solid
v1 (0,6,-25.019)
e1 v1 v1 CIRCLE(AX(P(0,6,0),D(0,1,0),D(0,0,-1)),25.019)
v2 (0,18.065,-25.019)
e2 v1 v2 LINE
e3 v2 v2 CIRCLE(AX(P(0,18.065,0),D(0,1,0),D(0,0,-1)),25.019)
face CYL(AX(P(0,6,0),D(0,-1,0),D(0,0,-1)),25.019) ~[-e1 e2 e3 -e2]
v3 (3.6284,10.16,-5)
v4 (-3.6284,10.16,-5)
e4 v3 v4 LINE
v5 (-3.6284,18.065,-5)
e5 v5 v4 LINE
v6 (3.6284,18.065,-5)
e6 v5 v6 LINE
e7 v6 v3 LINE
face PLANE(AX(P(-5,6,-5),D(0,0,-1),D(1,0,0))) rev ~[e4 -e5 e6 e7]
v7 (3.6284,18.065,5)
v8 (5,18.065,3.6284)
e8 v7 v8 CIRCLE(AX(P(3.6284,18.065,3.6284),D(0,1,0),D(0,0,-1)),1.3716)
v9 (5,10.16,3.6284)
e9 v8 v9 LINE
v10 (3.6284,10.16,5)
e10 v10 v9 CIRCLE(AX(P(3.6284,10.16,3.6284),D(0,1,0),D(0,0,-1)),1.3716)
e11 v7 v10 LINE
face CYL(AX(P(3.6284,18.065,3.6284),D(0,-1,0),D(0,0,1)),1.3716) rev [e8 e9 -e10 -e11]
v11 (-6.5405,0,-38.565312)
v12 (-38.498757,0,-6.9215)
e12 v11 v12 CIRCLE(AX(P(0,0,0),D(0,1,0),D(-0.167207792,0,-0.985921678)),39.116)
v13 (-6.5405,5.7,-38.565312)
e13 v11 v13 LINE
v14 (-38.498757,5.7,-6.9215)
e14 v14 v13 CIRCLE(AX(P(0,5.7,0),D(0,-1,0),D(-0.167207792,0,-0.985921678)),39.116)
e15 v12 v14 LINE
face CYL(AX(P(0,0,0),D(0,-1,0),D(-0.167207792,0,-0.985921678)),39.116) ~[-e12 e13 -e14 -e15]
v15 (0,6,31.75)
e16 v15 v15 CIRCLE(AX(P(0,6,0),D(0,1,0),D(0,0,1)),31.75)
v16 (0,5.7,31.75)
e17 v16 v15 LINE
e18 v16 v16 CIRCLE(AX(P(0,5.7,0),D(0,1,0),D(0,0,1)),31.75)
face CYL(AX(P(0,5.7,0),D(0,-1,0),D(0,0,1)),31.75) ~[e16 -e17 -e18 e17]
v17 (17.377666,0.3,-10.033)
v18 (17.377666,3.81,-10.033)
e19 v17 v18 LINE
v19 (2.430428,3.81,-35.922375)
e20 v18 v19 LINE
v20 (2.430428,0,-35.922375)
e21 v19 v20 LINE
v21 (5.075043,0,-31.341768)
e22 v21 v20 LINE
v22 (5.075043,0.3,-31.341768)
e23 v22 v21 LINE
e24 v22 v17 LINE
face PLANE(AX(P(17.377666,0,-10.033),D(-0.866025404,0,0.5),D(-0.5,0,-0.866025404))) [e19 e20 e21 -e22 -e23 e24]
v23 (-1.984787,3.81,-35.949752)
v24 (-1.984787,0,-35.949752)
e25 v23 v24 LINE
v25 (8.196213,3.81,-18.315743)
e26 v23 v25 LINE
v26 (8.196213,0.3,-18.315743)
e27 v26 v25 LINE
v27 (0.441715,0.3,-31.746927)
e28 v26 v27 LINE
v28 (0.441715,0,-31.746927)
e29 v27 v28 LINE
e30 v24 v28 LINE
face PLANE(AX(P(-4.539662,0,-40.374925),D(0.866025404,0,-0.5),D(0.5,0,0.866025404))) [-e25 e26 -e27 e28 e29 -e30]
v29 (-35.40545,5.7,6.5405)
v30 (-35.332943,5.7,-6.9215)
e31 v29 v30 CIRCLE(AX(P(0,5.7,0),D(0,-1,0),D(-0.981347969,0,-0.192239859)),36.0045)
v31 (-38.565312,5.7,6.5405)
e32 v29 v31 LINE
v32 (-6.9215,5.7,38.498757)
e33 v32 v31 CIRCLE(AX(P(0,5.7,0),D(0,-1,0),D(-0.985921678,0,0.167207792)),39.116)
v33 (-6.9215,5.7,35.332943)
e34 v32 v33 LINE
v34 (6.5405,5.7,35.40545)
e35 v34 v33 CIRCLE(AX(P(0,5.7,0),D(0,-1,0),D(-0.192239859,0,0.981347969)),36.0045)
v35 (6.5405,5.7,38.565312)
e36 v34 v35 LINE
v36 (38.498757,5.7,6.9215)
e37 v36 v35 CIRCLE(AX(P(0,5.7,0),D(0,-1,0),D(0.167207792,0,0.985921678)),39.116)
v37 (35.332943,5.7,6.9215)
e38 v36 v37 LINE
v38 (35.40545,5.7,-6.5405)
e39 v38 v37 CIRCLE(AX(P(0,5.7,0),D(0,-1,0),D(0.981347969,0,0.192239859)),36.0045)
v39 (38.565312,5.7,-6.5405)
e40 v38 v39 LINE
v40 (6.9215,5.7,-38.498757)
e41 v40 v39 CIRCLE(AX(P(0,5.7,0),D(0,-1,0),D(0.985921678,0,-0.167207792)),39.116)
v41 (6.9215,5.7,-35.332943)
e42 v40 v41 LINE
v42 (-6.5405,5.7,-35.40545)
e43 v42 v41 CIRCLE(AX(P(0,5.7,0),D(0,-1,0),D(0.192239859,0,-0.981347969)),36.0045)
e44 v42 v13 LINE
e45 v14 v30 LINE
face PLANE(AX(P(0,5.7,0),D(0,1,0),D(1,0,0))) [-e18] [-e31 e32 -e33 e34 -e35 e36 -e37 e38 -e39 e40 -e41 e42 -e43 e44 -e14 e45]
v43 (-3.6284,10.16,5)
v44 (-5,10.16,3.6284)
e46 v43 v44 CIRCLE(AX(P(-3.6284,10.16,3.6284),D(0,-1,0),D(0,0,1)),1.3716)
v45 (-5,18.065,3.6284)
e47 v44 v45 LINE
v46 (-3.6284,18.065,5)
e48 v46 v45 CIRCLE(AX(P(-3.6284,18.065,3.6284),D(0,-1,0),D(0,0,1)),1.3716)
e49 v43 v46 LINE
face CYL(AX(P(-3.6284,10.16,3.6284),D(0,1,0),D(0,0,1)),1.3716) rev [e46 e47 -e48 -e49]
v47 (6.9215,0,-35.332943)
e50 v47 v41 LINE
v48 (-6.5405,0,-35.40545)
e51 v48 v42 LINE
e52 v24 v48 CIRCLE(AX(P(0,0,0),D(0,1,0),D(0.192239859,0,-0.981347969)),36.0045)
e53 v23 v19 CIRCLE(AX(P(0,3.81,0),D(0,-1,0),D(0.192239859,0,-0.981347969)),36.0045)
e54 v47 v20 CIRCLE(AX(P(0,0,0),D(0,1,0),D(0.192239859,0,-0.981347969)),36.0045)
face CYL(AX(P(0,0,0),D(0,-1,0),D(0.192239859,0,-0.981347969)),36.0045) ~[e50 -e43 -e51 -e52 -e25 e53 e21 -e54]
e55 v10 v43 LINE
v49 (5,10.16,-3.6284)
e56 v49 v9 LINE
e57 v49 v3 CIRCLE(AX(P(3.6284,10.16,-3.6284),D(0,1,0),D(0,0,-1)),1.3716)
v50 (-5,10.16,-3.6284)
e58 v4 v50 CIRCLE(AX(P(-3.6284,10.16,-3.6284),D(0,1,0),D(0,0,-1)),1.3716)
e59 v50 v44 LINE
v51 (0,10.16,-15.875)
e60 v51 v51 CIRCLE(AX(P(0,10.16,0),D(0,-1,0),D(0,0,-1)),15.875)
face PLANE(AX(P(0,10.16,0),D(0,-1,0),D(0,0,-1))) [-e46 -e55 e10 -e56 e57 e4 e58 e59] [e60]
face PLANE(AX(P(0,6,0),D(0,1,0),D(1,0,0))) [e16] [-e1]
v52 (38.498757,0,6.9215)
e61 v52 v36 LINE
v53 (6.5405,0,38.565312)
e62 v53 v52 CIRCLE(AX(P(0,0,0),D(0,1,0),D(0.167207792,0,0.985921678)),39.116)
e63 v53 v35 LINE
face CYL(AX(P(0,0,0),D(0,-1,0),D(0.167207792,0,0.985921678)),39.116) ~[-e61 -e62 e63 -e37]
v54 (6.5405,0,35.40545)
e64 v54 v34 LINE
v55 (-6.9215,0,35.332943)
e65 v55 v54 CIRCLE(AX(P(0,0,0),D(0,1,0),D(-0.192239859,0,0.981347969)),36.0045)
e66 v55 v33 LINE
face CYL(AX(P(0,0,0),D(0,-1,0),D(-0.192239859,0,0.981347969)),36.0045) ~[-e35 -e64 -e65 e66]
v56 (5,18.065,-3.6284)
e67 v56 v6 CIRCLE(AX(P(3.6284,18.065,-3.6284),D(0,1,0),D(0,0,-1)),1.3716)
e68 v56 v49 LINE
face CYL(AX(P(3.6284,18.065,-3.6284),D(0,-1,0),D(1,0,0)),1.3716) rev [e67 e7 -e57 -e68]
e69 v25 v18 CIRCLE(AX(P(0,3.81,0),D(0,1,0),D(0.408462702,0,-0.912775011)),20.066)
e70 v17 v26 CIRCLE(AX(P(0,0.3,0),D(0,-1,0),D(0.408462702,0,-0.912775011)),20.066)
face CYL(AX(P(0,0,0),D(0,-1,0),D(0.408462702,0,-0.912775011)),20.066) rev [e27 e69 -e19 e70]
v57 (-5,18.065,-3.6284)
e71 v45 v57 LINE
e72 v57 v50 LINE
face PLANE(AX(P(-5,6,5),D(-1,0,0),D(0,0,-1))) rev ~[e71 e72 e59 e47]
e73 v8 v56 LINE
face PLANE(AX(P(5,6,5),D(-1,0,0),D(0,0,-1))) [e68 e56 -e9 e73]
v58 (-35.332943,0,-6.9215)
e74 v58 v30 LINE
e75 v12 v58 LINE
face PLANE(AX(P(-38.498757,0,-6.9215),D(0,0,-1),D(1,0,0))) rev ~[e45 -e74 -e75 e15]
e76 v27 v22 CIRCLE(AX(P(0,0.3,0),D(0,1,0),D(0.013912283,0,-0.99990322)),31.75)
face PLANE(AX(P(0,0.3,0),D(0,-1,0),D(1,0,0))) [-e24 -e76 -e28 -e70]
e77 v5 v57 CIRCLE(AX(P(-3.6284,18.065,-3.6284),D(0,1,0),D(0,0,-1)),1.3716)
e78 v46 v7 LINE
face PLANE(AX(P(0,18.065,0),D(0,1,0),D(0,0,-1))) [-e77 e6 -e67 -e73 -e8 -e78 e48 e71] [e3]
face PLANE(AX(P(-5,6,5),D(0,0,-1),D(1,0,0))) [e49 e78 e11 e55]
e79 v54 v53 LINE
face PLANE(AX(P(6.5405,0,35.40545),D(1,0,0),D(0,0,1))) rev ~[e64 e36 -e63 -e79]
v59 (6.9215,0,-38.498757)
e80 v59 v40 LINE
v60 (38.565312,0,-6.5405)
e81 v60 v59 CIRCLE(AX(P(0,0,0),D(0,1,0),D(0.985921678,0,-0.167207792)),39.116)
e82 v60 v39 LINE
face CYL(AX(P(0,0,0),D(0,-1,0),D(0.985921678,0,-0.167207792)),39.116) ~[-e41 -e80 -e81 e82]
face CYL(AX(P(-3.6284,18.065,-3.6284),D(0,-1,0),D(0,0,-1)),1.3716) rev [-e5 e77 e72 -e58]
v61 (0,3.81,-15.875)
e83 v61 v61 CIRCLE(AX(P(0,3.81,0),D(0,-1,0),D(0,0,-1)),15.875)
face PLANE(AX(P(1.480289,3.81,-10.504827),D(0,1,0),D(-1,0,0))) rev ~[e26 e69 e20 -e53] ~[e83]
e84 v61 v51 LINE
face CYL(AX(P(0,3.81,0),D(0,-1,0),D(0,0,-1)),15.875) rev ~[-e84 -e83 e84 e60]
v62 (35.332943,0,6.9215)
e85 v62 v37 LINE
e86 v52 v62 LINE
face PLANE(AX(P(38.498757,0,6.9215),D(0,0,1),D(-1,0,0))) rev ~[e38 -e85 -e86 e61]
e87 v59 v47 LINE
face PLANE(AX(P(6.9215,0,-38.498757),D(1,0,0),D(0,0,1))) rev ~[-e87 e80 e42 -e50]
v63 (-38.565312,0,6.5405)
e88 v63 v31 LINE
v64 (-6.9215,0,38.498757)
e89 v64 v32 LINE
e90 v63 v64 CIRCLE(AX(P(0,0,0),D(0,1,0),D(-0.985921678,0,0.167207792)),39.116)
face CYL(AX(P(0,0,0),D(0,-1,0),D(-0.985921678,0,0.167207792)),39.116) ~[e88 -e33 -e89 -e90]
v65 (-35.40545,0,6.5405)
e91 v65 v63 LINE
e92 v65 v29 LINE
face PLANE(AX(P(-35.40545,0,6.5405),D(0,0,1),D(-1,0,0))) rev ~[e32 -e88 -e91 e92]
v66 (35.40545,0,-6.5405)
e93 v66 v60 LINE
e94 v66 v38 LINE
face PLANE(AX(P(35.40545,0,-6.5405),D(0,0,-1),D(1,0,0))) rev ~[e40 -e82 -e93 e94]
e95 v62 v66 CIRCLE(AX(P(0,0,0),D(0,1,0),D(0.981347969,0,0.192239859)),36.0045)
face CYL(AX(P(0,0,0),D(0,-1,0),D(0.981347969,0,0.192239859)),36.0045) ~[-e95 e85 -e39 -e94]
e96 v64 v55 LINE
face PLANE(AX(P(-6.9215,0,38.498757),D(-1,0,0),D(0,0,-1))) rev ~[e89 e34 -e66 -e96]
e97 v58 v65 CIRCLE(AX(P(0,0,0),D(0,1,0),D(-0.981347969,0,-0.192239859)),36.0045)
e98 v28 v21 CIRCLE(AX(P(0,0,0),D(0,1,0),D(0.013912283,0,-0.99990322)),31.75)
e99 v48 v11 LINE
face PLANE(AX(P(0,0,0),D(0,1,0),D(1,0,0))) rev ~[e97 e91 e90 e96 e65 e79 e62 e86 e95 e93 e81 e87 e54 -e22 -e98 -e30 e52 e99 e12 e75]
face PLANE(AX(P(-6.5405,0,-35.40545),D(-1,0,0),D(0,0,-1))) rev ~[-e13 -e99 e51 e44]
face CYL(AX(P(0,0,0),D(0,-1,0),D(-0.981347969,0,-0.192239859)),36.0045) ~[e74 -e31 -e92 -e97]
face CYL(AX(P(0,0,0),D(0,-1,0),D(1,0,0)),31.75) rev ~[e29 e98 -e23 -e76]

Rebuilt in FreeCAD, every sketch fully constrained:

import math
import FreeCAD as App
import Part
import Sketcher
from FreeCAD import Vector
Q = App.Units.Quantity


def edges_at(feature, points):
    """Names of the edges that pass closest to the given points."""
    edges = feature.Shape.Edges
    near = lambda p: min(range(len(edges)), key=lambda i: edges[i].distToShape(Part.Vertex(*p))[0])
    return sorted({f"Edge{near(p) + 1}" for p in points})

doc = App.newDocument("Part")
body = doc.addObject("PartDesign::Body", "Body")

sketch1 = body.newObject("Sketcher::SketchObject", "Sketch")
sketch1.AttachmentSupport = (doc.getObject("XZ_Plane"), [""])
sketch1.MapMode = "FlatFace"
sketch1.addGeometry(Part.LineSegment(Vector(35.4, -6.5, 0), Vector(38.6, -6.5, 0)), False)
sketch1.addGeometry(Part.ArcOfCircle(Part.Circle(Vector(0, 0, 0), Vector(0, 0, 1), 39.1), math.radians(-80), math.radians(-10)), False)
sketch1.addGeometry(Part.LineSegment(Vector(6.9, -38.5, 0), Vector(6.9, -35.3, 0)), False)
sketch1.addGeometry(Part.ArcOfCircle(Part.Circle(Vector(0, 0, 0), Vector(0, 0, 1), 36), math.radians(-100), math.radians(-79)), False)
sketch1.addGeometry(Part.LineSegment(Vector(-6.5, -35.4, 0), Vector(-6.5, -38.6, 0)), False)
sketch1.addGeometry(Part.ArcOfCircle(Part.Circle(Vector(0, 0, 0), Vector(0, 0, 1), 39.1), math.radians(-170), math.radians(-100)), False)
sketch1.addGeometry(Part.LineSegment(Vector(-38.5, -6.9, 0), Vector(-35.3, -6.9, 0)), False)
sketch1.addGeometry(Part.ArcOfCircle(Part.Circle(Vector(0, 0, 0), Vector(0, 0, 1), 36), math.radians(170), math.radians(191)), False)
sketch1.addGeometry(Part.LineSegment(Vector(-35.4, 6.5, 0), Vector(-38.6, 6.5, 0)), False)
sketch1.addGeometry(Part.ArcOfCircle(Part.Circle(Vector(0, 0, 0), Vector(0, 0, 1), 39.1), math.radians(100), math.radians(170)), False)
sketch1.addGeometry(Part.LineSegment(Vector(-6.9, 38.5, 0), Vector(-6.9, 35.3, 0)), False)
sketch1.addGeometry(Part.ArcOfCircle(Part.Circle(Vector(0, 0, 0), Vector(0, 0, 1), 36), math.radians(80), math.radians(101)), False)
sketch1.addGeometry(Part.LineSegment(Vector(6.5, 35.4, 0), Vector(6.5, 38.6, 0)), False)
sketch1.addGeometry(Part.ArcOfCircle(Part.Circle(Vector(0, 0, 0), Vector(0, 0, 1), 39.1), math.radians(10), math.radians(80)), False)
sketch1.addGeometry(Part.LineSegment(Vector(38.5, 6.9, 0), Vector(35.3, 6.9, 0)), False)
sketch1.addGeometry(Part.ArcOfCircle(Part.Circle(Vector(0, 0, 0), Vector(0, 0, 1), 36), math.radians(-10), math.radians(11)), False)
sketch1.addGeometry(Part.LineSegment(Vector(5, 5, 0), Vector(-5, 5, 0)), False)
sketch1.addGeometry(Part.LineSegment(Vector(-5, 5, 0), Vector(-5, -5, 0)), False)
sketch1.addGeometry(Part.LineSegment(Vector(-5, -5, 0), Vector(5, -5, 0)), False)
sketch1.addGeometry(Part.LineSegment(Vector(5, -5, 0), Vector(5, 5, 0)), False)
sketch1.addConstraint(Sketcher.Constraint("Coincident", 0, 2, 1, 2))
sketch1.addConstraint(Sketcher.Constraint("Coincident", 1, 1, 2, 1))
sketch1.addConstraint(Sketcher.Constraint("Coincident", 2, 2, 3, 2))
sketch1.addConstraint(Sketcher.Constraint("Coincident", 3, 1, 4, 1))
sketch1.addConstraint(Sketcher.Constraint("Coincident", 4, 2, 5, 2))
sketch1.addConstraint(Sketcher.Constraint("Coincident", 5, 1, 6, 1))
sketch1.addConstraint(Sketcher.Constraint("Coincident", 6, 2, 7, 2))
sketch1.addConstraint(Sketcher.Constraint("Coincident", 7, 1, 8, 1))
sketch1.addConstraint(Sketcher.Constraint("Coincident", 8, 2, 9, 2))
sketch1.addConstraint(Sketcher.Constraint("Coincident", 9, 1, 10, 1))
sketch1.addConstraint(Sketcher.Constraint("Coincident", 10, 2, 11, 2))
sketch1.addConstraint(Sketcher.Constraint("Coincident", 11, 1, 12, 1))
sketch1.addConstraint(Sketcher.Constraint("Coincident", 12, 2, 13, 2))
sketch1.addConstraint(Sketcher.Constraint("Coincident", 13, 1, 14, 1))
sketch1.addConstraint(Sketcher.Constraint("Coincident", 14, 2, 15, 2))
sketch1.addConstraint(Sketcher.Constraint("Coincident", 15, 1, 0, 1))
sketch1.addConstraint(Sketcher.Constraint("Coincident", 16, 2, 17, 1))
sketch1.addConstraint(Sketcher.Constraint("Coincident", 17, 2, 18, 1))
sketch1.addConstraint(Sketcher.Constraint("Coincident", 18, 2, 19, 1))
sketch1.addConstraint(Sketcher.Constraint("Coincident", 19, 2, 16, 1))
sketch1.addConstraint(Sketcher.Constraint("Horizontal", 0))
sketch1.addConstraint(Sketcher.Constraint("Vertical", 2))
sketch1.addConstraint(Sketcher.Constraint("Vertical", 4))
sketch1.addConstraint(Sketcher.Constraint("Horizontal", 6))
sketch1.addConstraint(Sketcher.Constraint("Horizontal", 8))
sketch1.addConstraint(Sketcher.Constraint("Vertical", 10))
sketch1.addConstraint(Sketcher.Constraint("Vertical", 12))
sketch1.addConstraint(Sketcher.Constraint("Horizontal", 14))
sketch1.addConstraint(Sketcher.Constraint("Horizontal", 16))
sketch1.addConstraint(Sketcher.Constraint("Vertical", 17))
sketch1.addConstraint(Sketcher.Constraint("Horizontal", 18))
sketch1.addConstraint(Sketcher.Constraint("Vertical", 19))
sketch1.addConstraint(Sketcher.Constraint("Coincident", 1, 3, -1, 1))
sketch1.addConstraint(Sketcher.Constraint("Coincident", 3, 3, -1, 1))
sketch1.addConstraint(Sketcher.Constraint("Coincident", 5, 3, -1, 1))
sketch1.addConstraint(Sketcher.Constraint("Coincident", 7, 3, -1, 1))
sketch1.addConstraint(Sketcher.Constraint("Coincident", 9, 3, -1, 1))
sketch1.addConstraint(Sketcher.Constraint("Coincident", 11, 3, -1, 1))
sketch1.addConstraint(Sketcher.Constraint("Coincident", 13, 3, -1, 1))
sketch1.addConstraint(Sketcher.Constraint("Coincident", 15, 3, -1, 1))
sketch1.addConstraint(Sketcher.Constraint("Equal", 1, 5))
sketch1.addConstraint(Sketcher.Constraint("Equal", 3, 7))
sketch1.addConstraint(Sketcher.Constraint("Equal", 5, 9))
sketch1.addConstraint(Sketcher.Constraint("Equal", 7, 11))
sketch1.addConstraint(Sketcher.Constraint("Equal", 9, 13))
sketch1.addConstraint(Sketcher.Constraint("Equal", 11, 15))
sketch1.addConstraint(Sketcher.Constraint("Symmetric", 16, 2, 18, 2, -1, 1))
sketch1.addConstraint(Sketcher.Constraint("Equal", 0, 8))
sketch1.addConstraint(Sketcher.Constraint("Equal", 6, 14))
sketch1.addConstraint(Sketcher.Constraint("Equal", 14, 2))
sketch1.addConstraint(Sketcher.Constraint("Equal", 8, 4))
sketch1.addConstraint(Sketcher.Constraint("Equal", 2, 10))
sketch1.addConstraint(Sketcher.Constraint("Equal", 4, 12))
sketch1.addConstraint(Sketcher.Constraint("Equal", 18, 17))
sketch1.addConstraint(Sketcher.Constraint("Radius", 1, Q("1.54 in")))
sketch1.addConstraint(Sketcher.Constraint("Radius", 3, Q("1.4175 in")))
sketch1.addConstraint(Sketcher.Constraint("DistanceX", 3, 1, 2, 2, Q("0.53 in")))
sketch1.addConstraint(Sketcher.Constraint("DistanceX", 16, 2, 16, 1, 10.0))
sketch1.addConstraint(Sketcher.Constraint("DistanceY", 0, 2, -1, 1, Q("0.2575 in")))
pad1 = body.newObject("PartDesign::Pad", "Pad")
pad1.Profile = sketch1
pad1.Length = 6
pad1.Reversed = True

sketch2 = body.newObject("Sketcher::SketchObject", "Sketch001")
sketch2.AttachmentSupport = (doc.getObject("XZ_Plane"), [""])
sketch2.MapMode = "FlatFace"
sketch2.addGeometry(Part.LineSegment(Vector(-0.3, -40.6, 0), Vector(17.4, -10, 0)), False)
sketch2.addGeometry(Part.ArcOfCircle(Part.Circle(Vector(0, 0, 0), Vector(0, 0, 1), 20.1), math.radians(-30), math.radians(294)), False)
sketch2.addGeometry(Part.LineSegment(Vector(8.2, -18.3, 0), Vector(-4.5, -40.4, 0)), False)
sketch2.addGeometry(Part.ArcOfCircle(Part.Circle(Vector(0, 0, 0), Vector(0, 0, 1), 40.6), math.radians(-96.42), math.radians(-90.4)), False)
sketch2.addConstraint(Sketcher.Constraint("Tangent", 0, 2, 1, 1))
sketch2.addConstraint(Sketcher.Constraint("Coincident", 1, 2, 2, 1))
sketch2.addConstraint(Sketcher.Constraint("Coincident", 2, 2, 3, 1))
sketch2.addConstraint(Sketcher.Constraint("Coincident", 3, 2, 0, 1))
sketch2.addConstraint(Sketcher.Constraint("Coincident", 1, 3, -1, 1))
sketch2.addConstraint(Sketcher.Constraint("Coincident", 3, 3, -1, 1))
sketch2.addConstraint(Sketcher.Constraint("Parallel", 0, 2))
sketch2.addConstraint(Sketcher.Constraint("Radius", 1, Q("0.79 in")))
sketch2.addConstraint(Sketcher.Constraint("Angle", 0, Q("60 deg")))
sketch2.addConstraint(Sketcher.Constraint("Radius", 3, 40.629337))
sketch2.addConstraint(Sketcher.Constraint("Distance", 2, 25.471749))
pocket1 = body.newObject("PartDesign::Pocket", "Pocket")
pocket1.Profile = sketch2
pocket1.Length = Q("0.15 in")

sketch3 = body.newObject("Sketcher::SketchObject", "Sketch002")
sketch3.AttachmentSupport = (doc.getObject("XZ_Plane"), [""])
sketch3.MapMode = "FlatFace"
sketch3.addGeometry(Part.Circle(Vector(0, 0, 0), Vector(0, 0, 1), 32), False)
sketch3.addConstraint(Sketcher.Constraint("Coincident", 0, 3, -1, 1))
sketch3.addConstraint(Sketcher.Constraint("Diameter", 0, Q("2.5 in")))
pocket2 = body.newObject("PartDesign::Pocket", "Pocket001")
pocket2.Profile = sketch3
pocket2.Length = 0.3

sketch4 = body.newObject("Sketcher::SketchObject", "Sketch003")
sketch4.AttachmentSupport = (doc.getObject("XZ_Plane"), [""])
sketch4.MapMode = "FlatFace"
sketch4.AttachmentOffset = App.Placement(Vector(0, 0, -6), App.Rotation())
sketch4.addGeometry(Part.Circle(Vector(0, 0, 0), Vector(0, 0, 1), 25), False)
sketch4.addGeometry(Part.LineSegment(Vector(5, 5, 0), Vector(-5, 5, 0)), False)
sketch4.addGeometry(Part.LineSegment(Vector(-5, 5, 0), Vector(-5, -5, 0)), False)
sketch4.addGeometry(Part.LineSegment(Vector(-5, -5, 0), Vector(5, -5, 0)), False)
sketch4.addGeometry(Part.LineSegment(Vector(5, -5, 0), Vector(5, 5, 0)), False)
sketch4.addConstraint(Sketcher.Constraint("Coincident", 1, 2, 2, 1))
sketch4.addConstraint(Sketcher.Constraint("Coincident", 2, 2, 3, 1))
sketch4.addConstraint(Sketcher.Constraint("Coincident", 3, 2, 4, 1))
sketch4.addConstraint(Sketcher.Constraint("Coincident", 4, 2, 1, 1))
sketch4.addConstraint(Sketcher.Constraint("Horizontal", 1))
sketch4.addConstraint(Sketcher.Constraint("Vertical", 2))
sketch4.addConstraint(Sketcher.Constraint("Horizontal", 3))
sketch4.addConstraint(Sketcher.Constraint("Vertical", 4))
sketch4.addConstraint(Sketcher.Constraint("Coincident", 0, 3, -1, 1))
sketch4.addConstraint(Sketcher.Constraint("Symmetric", 1, 2, 3, 2, -1, 1))
sketch4.addConstraint(Sketcher.Constraint("Equal", 3, 2))
sketch4.addConstraint(Sketcher.Constraint("Diameter", 0, Q("1.97 in")))
sketch4.addConstraint(Sketcher.Constraint("DistanceX", 1, 2, 1, 1, 10.0))
pad2 = body.newObject("PartDesign::Pad", "Pad001")
pad2.Profile = sketch4
pad2.Length = Q("0.475 in")
pad2.Reversed = True

sketch5 = body.newObject("Sketcher::SketchObject", "Sketch004")
sketch5.AttachmentSupport = (doc.getObject("XZ_Plane"), [""])
sketch5.MapMode = "FlatFace"
sketch5.AttachmentOffset = App.Placement(Vector(0, 0, -0.15 * 25.4), App.Rotation())
sketch5.addGeometry(Part.Circle(Vector(0, 0, 0), Vector(0, 0, 1), 16), False)
sketch5.addConstraint(Sketcher.Constraint("Coincident", 0, 3, -1, 1))
sketch5.addConstraint(Sketcher.Constraint("Diameter", 0, Q("1.25 in")))
pocket3 = body.newObject("PartDesign::Pocket", "Pocket002")
pocket3.Profile = sketch5
pocket3.Length = Q("0.25 in")
doc.recompute()

fillet = body.newObject("PartDesign::Fillet", "Fillet")
fillet.Base = (pocket3, edges_at(pocket3, [
    (5, 14.113, -5),
    (-5, 14.113, -5),
    (-5, 14.113, 5),
    (5, 14.113, 5),
]))
fillet.Radius = Q("0.054 in")

sketch6 = body.newObject("Sketcher::SketchObject", "Sketch005")
sketch6.AttachmentSupport = (doc.getObject("XZ_Plane"), [""])
sketch6.MapMode = "FlatFace"
sketch6.AttachmentOffset = App.Placement(Vector(0, 0, -5.7), App.Rotation())
sketch6.addGeometry(Part.Circle(Vector(0, 0, 0), Vector(0, 0, 1), 55), False)
sketch6.addGeometry(Part.Circle(Vector(0, 0, 0), Vector(0, 0, 1), 32), False)
sketch6.addConstraint(Sketcher.Constraint("Coincident", 0, 3, -1, 1))
sketch6.addConstraint(Sketcher.Constraint("Coincident", 1, 3, -1, 1))
sketch6.addConstraint(Sketcher.Constraint("Diameter", 1, Q("2.5 in")))
sketch6.addConstraint(Sketcher.Constraint("Diameter", 0, 109.940274))
pocket4 = body.newObject("PartDesign::Pocket", "Pocket003")
pocket4.Profile = sketch6
pocket4.Length = 0.3

doc.recompute()
